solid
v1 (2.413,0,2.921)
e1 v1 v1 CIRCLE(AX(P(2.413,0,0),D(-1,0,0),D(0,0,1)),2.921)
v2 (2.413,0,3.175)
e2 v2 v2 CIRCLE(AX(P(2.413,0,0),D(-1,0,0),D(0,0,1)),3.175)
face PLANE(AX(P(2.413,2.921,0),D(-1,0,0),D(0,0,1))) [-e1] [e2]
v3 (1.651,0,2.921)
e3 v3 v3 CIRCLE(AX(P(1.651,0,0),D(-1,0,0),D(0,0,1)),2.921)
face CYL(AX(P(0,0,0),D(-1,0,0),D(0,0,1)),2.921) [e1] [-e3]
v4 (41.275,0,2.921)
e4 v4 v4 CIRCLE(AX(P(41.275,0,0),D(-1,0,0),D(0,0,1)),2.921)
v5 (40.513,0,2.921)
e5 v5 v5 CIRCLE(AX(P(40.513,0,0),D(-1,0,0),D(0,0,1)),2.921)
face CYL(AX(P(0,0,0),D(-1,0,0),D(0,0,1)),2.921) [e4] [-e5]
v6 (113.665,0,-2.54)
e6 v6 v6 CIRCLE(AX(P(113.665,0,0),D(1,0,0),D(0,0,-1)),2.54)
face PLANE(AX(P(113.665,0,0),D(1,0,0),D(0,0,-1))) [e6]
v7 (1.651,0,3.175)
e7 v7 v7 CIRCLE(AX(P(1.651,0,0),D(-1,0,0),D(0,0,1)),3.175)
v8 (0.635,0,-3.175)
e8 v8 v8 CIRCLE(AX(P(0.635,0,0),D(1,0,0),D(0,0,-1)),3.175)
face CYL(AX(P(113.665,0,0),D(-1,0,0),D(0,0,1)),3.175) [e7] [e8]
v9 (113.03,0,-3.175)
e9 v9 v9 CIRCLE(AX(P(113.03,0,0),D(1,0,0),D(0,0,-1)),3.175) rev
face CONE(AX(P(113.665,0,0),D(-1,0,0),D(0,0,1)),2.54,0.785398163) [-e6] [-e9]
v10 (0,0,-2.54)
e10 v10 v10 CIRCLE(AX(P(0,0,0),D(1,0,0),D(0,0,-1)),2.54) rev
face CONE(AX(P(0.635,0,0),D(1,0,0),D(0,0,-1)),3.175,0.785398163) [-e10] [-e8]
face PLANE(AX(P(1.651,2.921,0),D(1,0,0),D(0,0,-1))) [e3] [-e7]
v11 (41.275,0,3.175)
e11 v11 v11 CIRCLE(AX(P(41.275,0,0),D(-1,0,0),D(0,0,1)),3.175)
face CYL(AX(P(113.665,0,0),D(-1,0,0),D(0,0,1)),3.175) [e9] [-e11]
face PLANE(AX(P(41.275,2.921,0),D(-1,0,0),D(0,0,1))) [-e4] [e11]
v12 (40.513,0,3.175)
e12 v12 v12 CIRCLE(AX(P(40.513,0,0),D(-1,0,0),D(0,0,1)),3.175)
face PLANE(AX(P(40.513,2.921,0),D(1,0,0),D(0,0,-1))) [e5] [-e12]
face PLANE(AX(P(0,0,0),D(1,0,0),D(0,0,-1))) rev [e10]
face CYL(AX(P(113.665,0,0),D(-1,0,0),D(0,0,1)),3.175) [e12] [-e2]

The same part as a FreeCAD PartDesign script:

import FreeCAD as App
import Part
import Sketcher

V = App.Vector
Q = App.Units.Quantity


def edges_at(feature, points):
    """Names of the edges that pass closest to the given points."""
    edges = feature.Shape.Edges
    near = lambda p: min(range(len(edges)), key=lambda i: edges[i].distToShape(Part.Vertex(*p))[0])
    return sorted({f"Edge{near(p) + 1}" for p in points})


def add_polygon(sketch, points):
    """Adds a closed chain of lines whose ends are joined by coincident constraints."""
    first, n = sketch.GeometryCount, len(points)
    for a, b in zip(points, points[1:] + points[:1]):
        sketch.addGeometry(Part.LineSegment(App.Vector(*a, 0), App.Vector(*b, 0)), False)
    for i in range(n):
        sketch.addConstraint(Sketcher.Constraint("Coincident", first + i, 2, first + (i + 1) % n, 1))

doc = App.newDocument("Part")
body = doc.addObject("PartDesign::Body", "Body")

sketch1 = body.newObject("Sketcher::SketchObject", "Sketch")
sketch1.AttachmentSupport = (doc.getObject("YZ_Plane"), [""])
sketch1.MapMode = "FlatFace"
sketch1.addGeometry(Part.Circle(V(0, 0, 0), V(0, 0, 1), 3.2), False)
sketch1.addConstraint([
    Sketcher.Constraint("Coincident", 0, 3, -1, 1),
    Sketcher.Constraint("Diameter", 0, Q("0.25 in")),
])
pad1 = body.newObject("PartDesign::Pad", "Pad")
pad1.Profile = sketch1
pad1.Length = Q("4.475 in")
doc.recompute()

chamfer = body.newObject("PartDesign::Chamfer", "Chamfer")
chamfer.Base = (pad1, edges_at(pad1, [(0, 0, 3.175), (113.665, 0, 3.175)]))
chamfer.Size = Q("0.025 in")

sketch2 = body.newObject("Sketcher::SketchObject", "Sketch001")
sketch2.AttachmentSupport = (doc.getObject("XY_Plane"), [""])
sketch2.MapMode = "FlatFace"
add_polygon(sketch2, [(1.65, 3.17), (1.65, 2.92), (2.41, 2.92), (2.41, 3.17)])
add_polygon(sketch2, [(40.51, 3.17), (40.51, 2.92), (41.27, 2.92), (41.27, 3.17)])
sketch2.addConstraint([
    Sketcher.Constraint("Vertical", 0),
    Sketcher.Constraint("Horizontal", 1),
    Sketcher.Constraint("Vertical", 2),
    Sketcher.Constraint("Horizontal", 3),
    Sketcher.Constraint("Vertical", 4),
    Sketcher.Constraint("Horizontal", 5),
    Sketcher.Constraint("Vertical", 6),
    Sketcher.Constraint("Horizontal", 7),
    Sketcher.Constraint("Horizontal", 1, 2, 4, 2),
    Sketcher.Constraint("Horizontal", 3, 2, 6, 2),
    Sketcher.Constraint("Equal", 3, 5),
    Sketcher.Constraint("DistanceX", 1, 1, 1, 2, Q("0.03 in")),
    Sketcher.Constraint("DistanceY", 0, 2, 0, 1, Q("0.01 in")),
    Sketcher.Constraint("DistanceX", 1, 2, 4, 2, Q("1.5 in")),
    Sketcher.Constraint("DistanceX", -1, 1, 0, 2, Q("0.065 in")),
    Sketcher.Constraint("DistanceY", -1, 1, 0, 2, Q("0.115 in")),
])
groove = body.newObject("PartDesign::Groove", "Groove")
groove.Profile = sketch2
groove.ReferenceAxis = (sketch2, ["H_Axis"])
groove.Angle = 360

doc.recompute()
